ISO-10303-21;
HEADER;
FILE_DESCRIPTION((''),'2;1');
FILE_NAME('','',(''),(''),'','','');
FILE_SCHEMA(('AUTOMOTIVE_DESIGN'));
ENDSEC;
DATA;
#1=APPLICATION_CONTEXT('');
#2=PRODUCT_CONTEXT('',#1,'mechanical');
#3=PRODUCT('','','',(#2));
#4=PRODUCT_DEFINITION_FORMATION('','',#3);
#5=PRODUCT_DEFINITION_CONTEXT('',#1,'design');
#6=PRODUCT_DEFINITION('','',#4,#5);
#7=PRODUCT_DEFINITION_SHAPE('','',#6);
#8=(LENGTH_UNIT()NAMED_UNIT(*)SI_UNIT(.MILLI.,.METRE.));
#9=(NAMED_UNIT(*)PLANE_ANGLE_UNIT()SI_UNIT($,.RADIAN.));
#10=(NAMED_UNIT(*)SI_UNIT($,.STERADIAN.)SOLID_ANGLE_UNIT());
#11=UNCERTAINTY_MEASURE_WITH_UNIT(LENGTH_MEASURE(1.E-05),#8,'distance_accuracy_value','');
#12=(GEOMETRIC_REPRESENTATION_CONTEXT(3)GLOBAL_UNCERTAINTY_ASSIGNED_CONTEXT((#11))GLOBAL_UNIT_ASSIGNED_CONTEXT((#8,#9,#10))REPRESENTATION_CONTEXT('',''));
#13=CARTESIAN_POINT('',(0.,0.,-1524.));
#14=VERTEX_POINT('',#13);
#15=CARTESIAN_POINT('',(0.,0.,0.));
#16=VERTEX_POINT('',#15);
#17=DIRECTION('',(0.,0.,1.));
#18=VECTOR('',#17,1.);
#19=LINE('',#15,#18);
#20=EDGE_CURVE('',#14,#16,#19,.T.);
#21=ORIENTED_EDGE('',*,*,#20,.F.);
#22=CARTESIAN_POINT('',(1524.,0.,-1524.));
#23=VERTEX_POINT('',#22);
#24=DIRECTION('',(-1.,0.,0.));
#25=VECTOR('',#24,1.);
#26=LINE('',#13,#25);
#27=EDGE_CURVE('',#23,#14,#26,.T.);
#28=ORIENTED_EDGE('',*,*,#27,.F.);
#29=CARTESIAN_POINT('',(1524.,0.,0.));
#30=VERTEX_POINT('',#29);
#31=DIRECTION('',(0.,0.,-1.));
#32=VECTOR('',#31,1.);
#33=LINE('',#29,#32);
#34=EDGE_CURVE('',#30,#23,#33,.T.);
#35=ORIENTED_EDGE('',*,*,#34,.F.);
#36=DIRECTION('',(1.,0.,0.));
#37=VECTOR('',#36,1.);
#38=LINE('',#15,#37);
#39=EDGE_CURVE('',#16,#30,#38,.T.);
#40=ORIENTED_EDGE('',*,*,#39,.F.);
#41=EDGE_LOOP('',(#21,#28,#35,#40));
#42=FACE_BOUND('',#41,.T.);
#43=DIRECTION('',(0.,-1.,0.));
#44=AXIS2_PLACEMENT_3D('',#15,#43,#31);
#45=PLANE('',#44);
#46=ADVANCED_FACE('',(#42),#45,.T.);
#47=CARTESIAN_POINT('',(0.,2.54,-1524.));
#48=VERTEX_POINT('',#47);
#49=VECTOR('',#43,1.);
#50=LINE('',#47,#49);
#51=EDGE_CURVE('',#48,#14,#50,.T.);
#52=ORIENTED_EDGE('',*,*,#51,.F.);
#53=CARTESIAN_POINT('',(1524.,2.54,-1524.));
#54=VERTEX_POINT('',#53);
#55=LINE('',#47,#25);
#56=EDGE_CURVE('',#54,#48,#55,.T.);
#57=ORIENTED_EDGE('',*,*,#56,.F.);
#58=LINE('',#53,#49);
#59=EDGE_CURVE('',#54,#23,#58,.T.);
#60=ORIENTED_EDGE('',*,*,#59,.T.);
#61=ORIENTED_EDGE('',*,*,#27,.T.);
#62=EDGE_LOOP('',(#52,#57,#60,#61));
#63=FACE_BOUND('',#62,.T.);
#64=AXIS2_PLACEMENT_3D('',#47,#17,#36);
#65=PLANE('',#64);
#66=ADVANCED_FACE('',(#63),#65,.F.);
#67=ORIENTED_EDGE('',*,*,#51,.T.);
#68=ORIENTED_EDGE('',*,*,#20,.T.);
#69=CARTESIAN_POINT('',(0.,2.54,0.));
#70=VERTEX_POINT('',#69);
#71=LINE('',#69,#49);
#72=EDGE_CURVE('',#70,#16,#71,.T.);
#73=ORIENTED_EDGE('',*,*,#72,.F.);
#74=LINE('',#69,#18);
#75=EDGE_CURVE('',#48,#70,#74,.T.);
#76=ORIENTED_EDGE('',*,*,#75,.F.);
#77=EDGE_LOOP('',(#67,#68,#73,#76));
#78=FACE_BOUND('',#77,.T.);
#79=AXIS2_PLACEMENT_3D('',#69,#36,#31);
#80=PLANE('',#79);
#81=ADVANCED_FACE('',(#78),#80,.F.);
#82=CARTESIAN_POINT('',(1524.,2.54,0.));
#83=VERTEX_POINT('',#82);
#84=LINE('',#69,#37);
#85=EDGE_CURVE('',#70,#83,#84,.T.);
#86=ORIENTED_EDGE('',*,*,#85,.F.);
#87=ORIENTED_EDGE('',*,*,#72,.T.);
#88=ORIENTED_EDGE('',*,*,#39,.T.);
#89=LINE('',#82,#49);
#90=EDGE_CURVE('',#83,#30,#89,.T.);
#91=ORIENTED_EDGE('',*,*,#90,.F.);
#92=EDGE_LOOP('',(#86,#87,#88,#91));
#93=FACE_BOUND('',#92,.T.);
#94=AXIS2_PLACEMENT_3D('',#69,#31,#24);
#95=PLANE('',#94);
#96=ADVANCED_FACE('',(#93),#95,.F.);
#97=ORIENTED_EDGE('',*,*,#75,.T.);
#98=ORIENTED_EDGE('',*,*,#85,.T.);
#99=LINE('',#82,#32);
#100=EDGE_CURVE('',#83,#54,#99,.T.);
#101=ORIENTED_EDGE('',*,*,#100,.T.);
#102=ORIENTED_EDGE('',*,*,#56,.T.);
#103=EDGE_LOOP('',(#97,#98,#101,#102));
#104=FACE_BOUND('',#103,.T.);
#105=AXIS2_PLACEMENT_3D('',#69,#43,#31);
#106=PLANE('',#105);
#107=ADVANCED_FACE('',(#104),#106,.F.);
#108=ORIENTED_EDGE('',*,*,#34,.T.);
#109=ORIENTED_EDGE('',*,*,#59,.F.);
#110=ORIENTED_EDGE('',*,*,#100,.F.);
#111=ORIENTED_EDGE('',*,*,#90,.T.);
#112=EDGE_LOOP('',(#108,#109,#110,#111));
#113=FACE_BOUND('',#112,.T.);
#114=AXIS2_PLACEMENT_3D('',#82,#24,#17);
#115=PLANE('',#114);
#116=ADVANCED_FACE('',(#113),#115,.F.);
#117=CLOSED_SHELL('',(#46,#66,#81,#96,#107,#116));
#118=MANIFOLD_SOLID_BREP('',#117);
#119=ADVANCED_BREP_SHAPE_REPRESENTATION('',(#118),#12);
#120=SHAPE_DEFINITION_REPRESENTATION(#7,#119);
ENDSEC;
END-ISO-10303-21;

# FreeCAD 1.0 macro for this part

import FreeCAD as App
import Part
import Sketcher
Q = App.Units.Quantity

doc = App.newDocument("Part")
body = doc.addObject("PartDesign::Body", "Body")

sketch1 = body.newObject("Sketcher::SketchObject", "Sketch")
sketch1.AttachmentSupport = (doc.getObject("XZ_Plane"), [""])
sketch1.MapMode = "FlatFace"
sketch1.addGeometry([
    Part.LineSegment(App.Vector(0, -1524, 0), App.Vector(0, 0, 0)),
    Part.LineSegment(App.Vector(0, 0, 0), App.Vector(1524, 0, 0)),
    Part.LineSegment(App.Vector(1524, 0, 0), App.Vector(1524, -1524, 0)),
    Part.LineSegment(App.Vector(1524, -1524, 0), App.Vector(0, -1524, 0)),
], False)
sketch1.addConstraint([
    Sketcher.Constraint("Coincident", 0, 2, 1, 1),
    Sketcher.Constraint("Coincident", 1, 2, 2, 1),
    Sketcher.Constraint("Coincident", 2, 2, 3, 1),
    Sketcher.Constraint("Coincident", 3, 2, 0, 1),
    Sketcher.Constraint("Vertical", 0),
    Sketcher.Constraint("Horizontal", 1),
    Sketcher.Constraint("Vertical", 2),
    Sketcher.Constraint("Horizontal", 3),
    Sketcher.Constraint("Coincident", 0, 2, -1, 1),
    Sketcher.Constraint("Equal", 3, 0),
    Sketcher.Constraint("DistanceX", 1, 1, 1, 2, Q("60 in")),
])
pad1 = body.newObject("PartDesign::Pad", "Pad")
pad1.Profile = sketch1
pad1.Length = Q("0.1 in")
pad1.Reversed = True

doc.recompute()
